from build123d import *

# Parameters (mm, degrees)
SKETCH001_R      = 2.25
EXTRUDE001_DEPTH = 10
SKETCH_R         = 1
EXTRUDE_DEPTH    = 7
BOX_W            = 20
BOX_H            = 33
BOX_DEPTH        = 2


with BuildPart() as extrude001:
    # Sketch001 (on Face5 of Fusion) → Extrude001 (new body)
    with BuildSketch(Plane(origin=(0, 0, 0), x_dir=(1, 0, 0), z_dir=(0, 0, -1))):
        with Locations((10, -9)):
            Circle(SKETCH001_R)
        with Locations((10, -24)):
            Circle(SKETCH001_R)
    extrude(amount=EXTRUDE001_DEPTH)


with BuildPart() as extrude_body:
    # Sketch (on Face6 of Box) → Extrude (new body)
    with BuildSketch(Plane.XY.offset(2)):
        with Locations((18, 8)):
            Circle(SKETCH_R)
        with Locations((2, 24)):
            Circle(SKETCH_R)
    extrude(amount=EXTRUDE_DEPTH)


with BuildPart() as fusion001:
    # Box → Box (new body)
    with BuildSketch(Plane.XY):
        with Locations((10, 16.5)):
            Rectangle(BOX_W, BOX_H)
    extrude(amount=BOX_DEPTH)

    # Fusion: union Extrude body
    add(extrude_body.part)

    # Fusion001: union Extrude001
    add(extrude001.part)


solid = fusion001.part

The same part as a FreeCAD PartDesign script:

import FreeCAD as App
import Part
import Sketcher
Q = App.Units.Quantity


def add_polygon(sketch, points):
    """Adds a closed chain of lines whose ends are joined by coincident constraints."""
    first, n = sketch.GeometryCount, len(points)
    for a, b in zip(points, points[1:] + points[:1]):
        sketch.addGeometry(Part.LineSegment(App.Vector(*a, 0), App.Vector(*b, 0)), False)
    for i in range(n):
        sketch.addConstraint(Sketcher.Constraint("Coincident", first + i, 2, first + (i + 1) % n, 1))

doc = App.newDocument("Part")
body = doc.addObject("PartDesign::Body", "Body")
body.AllowCompound = True

# Sketch on XY plane
sketch1 = body.newObject("Sketcher::SketchObject", "Sketch")
sketch1.AttachmentSupport = (doc.getObject("XY_Plane"), [""])
sketch1.MapMode = "FlatFace"
sketch1.addGeometry(Part.Circle(App.Vector(10, 9, 0), App.Vector(0, 0, 1), 2.25), False)
sketch1.addGeometry(Part.Circle(App.Vector(10, 24, 0), App.Vector(0, 0, 1), 2.25), False)
sketch1.addConstraint(Sketcher.Constraint("Equal", 0, 1))
sketch1.addConstraint(Sketcher.Constraint("Vertical", 0, 3, 1, 3))
sketch1.addConstraint(Sketcher.Constraint("Diameter", 0, Q("4.5 mm")))
sketch1.addConstraint(Sketcher.Constraint("DistanceX", -1, 1, 0, 3, Q("10 mm")))
sketch1.addConstraint(Sketcher.Constraint("DistanceY", -1, 1, 0, 3, Q("9 mm")))
sketch1.addConstraint(Sketcher.Constraint("DistanceY", -1, 1, 1, 3, Q("24 mm")))
pad1 = body.newObject("PartDesign::Pad", "Pad")
pad1.Profile = sketch1
pad1.Length = 10
pad1.Reversed = True
body2 = doc.addObject("PartDesign::Body", "Body001")
body2.AllowCompound = True

# Sketch on XY plane
sketch2 = body2.newObject("Sketcher::SketchObject", "Sketch001")
sketch2.AttachmentSupport = (doc.getObject("XY_Plane001"), [""])
sketch2.MapMode = "FlatFace"
sketch2.AttachmentOffset = App.Placement(App.Vector(0, 0, 2), App.Rotation())
sketch2.addGeometry(Part.Circle(App.Vector(18, 8, 0), App.Vector(0, 0, 1), 1), False)
sketch2.addGeometry(Part.Circle(App.Vector(2, 24, 0), App.Vector(0, 0, 1), 1), False)
sketch2.addConstraint(Sketcher.Constraint("Equal", 0, 1))
sketch2.addConstraint(Sketcher.Constraint("Diameter", 0, Q("2 mm")))
sketch2.addConstraint(Sketcher.Constraint("DistanceX", -1, 1, 0, 3, Q("18 mm")))
sketch2.addConstraint(Sketcher.Constraint("DistanceY", -1, 1, 0, 3, Q("8 mm")))
sketch2.addConstraint(Sketcher.Constraint("DistanceX", -1, 1, 1, 3, Q("2 mm")))
sketch2.addConstraint(Sketcher.Constraint("DistanceY", -1, 1, 1, 3, Q("24 mm")))
pad2 = body2.newObject("PartDesign::Pad", "Pad001")
pad2.Profile = sketch2
pad2.Length = 7
body3 = doc.addObject("PartDesign::Body", "Body002")

# Sketch on XY plane
sketch3 = body3.newObject("Sketcher::SketchObject", "Sketch002")
sketch3.AttachmentSupport = (doc.getObject("XY_Plane002"), [""])
sketch3.MapMode = "FlatFace"
add_polygon(sketch3, [(0, 33), (0, 0), (20, 0), (20, 33)])  # lines 0-3
sketch3.addConstraint(Sketcher.Constraint("Vertical", 0))
sketch3.addConstraint(Sketcher.Constraint("Horizontal", 1))
sketch3.addConstraint(Sketcher.Constraint("Vertical", 2))
sketch3.addConstraint(Sketcher.Constraint("Horizontal", 3))
sketch3.addConstraint(Sketcher.Constraint("Coincident", 0, 2, -1, 1))
sketch3.addConstraint(Sketcher.Constraint("DistanceX", 1, 1, 1, 2, Q("20 mm")))
sketch3.addConstraint(Sketcher.Constraint("DistanceY", 0, 2, 0, 1, Q("33 mm")))
pad3 = body3.newObject("PartDesign::Pad", "Pad002")
pad3.Profile = sketch3
pad3.Length = 2
doc.recompute()

boolean = body3.newObject("PartDesign::Boolean", "Boolean")
boolean.Type = "Fuse"
boolean.addObjects([body2])
doc.recompute()

boolean2 = body3.newObject("PartDesign::Boolean", "Boolean001")
boolean2.Type = "Fuse"
boolean2.addObjects([body])

doc.recompute()
